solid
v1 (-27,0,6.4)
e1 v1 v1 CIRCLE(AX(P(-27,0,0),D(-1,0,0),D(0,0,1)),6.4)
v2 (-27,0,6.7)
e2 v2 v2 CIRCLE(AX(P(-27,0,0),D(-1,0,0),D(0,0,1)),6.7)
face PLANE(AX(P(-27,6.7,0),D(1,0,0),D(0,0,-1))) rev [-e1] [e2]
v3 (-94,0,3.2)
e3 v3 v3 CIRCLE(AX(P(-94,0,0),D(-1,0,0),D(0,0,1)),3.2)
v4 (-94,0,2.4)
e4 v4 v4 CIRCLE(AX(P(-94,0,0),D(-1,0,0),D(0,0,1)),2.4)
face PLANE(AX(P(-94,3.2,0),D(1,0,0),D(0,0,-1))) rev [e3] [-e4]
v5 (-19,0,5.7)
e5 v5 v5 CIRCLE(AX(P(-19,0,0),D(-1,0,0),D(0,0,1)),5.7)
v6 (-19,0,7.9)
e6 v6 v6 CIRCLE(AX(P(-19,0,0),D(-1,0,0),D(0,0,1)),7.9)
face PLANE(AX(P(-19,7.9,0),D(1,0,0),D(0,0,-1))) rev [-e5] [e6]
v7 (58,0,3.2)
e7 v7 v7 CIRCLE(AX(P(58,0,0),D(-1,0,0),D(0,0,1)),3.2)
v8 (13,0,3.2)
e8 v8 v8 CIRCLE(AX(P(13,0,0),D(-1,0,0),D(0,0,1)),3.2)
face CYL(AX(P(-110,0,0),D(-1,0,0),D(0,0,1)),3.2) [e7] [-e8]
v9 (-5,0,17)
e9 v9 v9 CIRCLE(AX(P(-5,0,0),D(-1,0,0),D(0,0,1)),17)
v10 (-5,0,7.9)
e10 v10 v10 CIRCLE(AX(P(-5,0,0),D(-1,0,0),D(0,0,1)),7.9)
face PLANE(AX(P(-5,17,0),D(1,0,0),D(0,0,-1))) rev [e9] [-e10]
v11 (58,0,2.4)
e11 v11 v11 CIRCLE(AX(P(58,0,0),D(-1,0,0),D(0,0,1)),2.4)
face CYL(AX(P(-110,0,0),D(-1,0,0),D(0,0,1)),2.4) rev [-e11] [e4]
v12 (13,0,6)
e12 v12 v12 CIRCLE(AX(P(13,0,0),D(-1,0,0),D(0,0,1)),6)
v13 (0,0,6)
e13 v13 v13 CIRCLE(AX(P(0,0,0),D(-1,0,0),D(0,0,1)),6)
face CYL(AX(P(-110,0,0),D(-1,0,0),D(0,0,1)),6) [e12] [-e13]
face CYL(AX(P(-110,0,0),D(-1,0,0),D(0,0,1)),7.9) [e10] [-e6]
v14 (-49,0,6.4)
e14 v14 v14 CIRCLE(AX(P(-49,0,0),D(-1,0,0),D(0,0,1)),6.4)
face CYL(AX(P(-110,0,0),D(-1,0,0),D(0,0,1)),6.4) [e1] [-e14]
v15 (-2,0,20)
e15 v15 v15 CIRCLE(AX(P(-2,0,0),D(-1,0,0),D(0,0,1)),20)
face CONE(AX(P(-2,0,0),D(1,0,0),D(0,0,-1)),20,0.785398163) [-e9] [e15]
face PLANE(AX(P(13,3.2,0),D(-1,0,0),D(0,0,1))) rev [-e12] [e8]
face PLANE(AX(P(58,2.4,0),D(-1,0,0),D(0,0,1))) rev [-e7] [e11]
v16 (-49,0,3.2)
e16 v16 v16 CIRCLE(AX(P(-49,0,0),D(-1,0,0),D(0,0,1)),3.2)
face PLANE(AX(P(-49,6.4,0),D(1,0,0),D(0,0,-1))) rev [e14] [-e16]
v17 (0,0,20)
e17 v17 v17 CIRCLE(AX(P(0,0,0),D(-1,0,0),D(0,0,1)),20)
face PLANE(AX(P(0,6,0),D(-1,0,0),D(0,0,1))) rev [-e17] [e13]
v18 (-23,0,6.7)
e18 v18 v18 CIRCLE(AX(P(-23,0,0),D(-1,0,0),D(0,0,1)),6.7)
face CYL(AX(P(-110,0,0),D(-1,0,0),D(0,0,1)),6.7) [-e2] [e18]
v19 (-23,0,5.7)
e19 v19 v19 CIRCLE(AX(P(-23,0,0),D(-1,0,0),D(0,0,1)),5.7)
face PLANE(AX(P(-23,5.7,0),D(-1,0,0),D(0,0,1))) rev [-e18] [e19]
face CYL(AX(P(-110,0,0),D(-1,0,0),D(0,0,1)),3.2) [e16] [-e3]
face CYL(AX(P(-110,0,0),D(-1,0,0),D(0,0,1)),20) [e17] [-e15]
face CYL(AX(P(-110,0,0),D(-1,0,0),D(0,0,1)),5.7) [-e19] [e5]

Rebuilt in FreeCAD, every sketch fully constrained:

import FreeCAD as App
import Part
import Sketcher

V = App.Vector
Q = App.Units.Quantity


def add_polygon(sketch, points):
    """Adds a closed chain of lines whose ends are joined by coincident constraints."""
    first, n = sketch.GeometryCount, len(points)
    for a, b in zip(points, points[1:] + points[:1]):
        sketch.addGeometry(Part.LineSegment(App.Vector(*a, 0), App.Vector(*b, 0)), False)
    for i in range(n):
        sketch.addConstraint(Sketcher.Constraint("Coincident", first + i, 2, first + (i + 1) % n, 1))

doc = App.newDocument("Part")
body = doc.addObject("PartDesign::Body", "Body")

# Sketch on XY plane
sketch1 = body.newObject("Sketcher::SketchObject", "Sketch")
sketch1.AttachmentSupport = (doc.getObject("XY_Plane"), [""])
sketch1.MapMode = "FlatFace"
add_polygon(sketch1, [(-94, 2.4), (58, 2.4), (58, 3.2), (13, 3.2), (13, 6), (0, 6), (0, 20), (-2, 20), (-5, 17), (-5, 7.9), (-19, 7.9), (-19, 5.7), (-23, 5.7), (-23, 6.7), (-27, 6.7), (-27, 6.4), (-49, 6.4), (-49, 3.2), (-94, 3.2)])  # lines 0-18
sketch1.addConstraint([
    Sketcher.Constraint("Horizontal", 0),
    Sketcher.Constraint("Vertical", 1),
    Sketcher.Constraint("Horizontal", 2),
    Sketcher.Constraint("Vertical", 3),
    Sketcher.Constraint("Horizontal", 4),
    Sketcher.Constraint("Vertical", 5),
    Sketcher.Constraint("Horizontal", 6),
    Sketcher.Constraint("Vertical", 8),
    Sketcher.Constraint("Horizontal", 9),
    Sketcher.Constraint("Vertical", 10),
    Sketcher.Constraint("Horizontal", 11),
    Sketcher.Constraint("Vertical", 12),
    Sketcher.Constraint("Horizontal", 13),
    Sketcher.Constraint("Vertical", 14),
    Sketcher.Constraint("Horizontal", 15),
    Sketcher.Constraint("Vertical", 16),
    Sketcher.Constraint("Horizontal", 17),
    Sketcher.Constraint("Vertical", 18),
    Sketcher.Constraint("PointOnObject", 4, 2, -2),
    Sketcher.Constraint("Horizontal", 2, 2, 16, 2),
    Sketcher.Constraint("Equal", 11, 13),
    Sketcher.Constraint("Equal", 2, 17),
    Sketcher.Constraint("Equal", 9, 5),
    Sketcher.Constraint("DistanceX", 0, 1, 0, 2, Q("152 mm")),
    Sketcher.Constraint("DistanceX", 2, 2, 2, 1, Q("45 mm")),
    Sketcher.Constraint("DistanceX", 4, 2, 4, 1, Q("13 mm")),
    Sketcher.Constraint("DistanceX", 6, 2, 6, 1, Q("2 mm")),
    Sketcher.Constraint("DistanceX", 9, 2, 9, 1, Q("14 mm")),
    Sketcher.Constraint("DistanceX", 11, 2, 11, 1, Q("4 mm")),
    Sketcher.Constraint("DistanceX", 15, 2, 15, 1, Q("22 mm")),
    Sketcher.Constraint("DistanceY", 12, 1, 12, 2, Q("1 mm")),
    Sketcher.Constraint("Angle", 7, Q("-135 deg")),
    Sketcher.Constraint("DistanceY", 1, 1, 1, 2, Q("0.8 mm")),
    Sketcher.Constraint("DistanceY", 3, 1, 3, 2, Q("2.8 mm")),
    Sketcher.Constraint("DistanceY", 8, 2, 8, 1, Q("9.1 mm")),
    Sketcher.Constraint("DistanceY", 10, 2, 10, 1, Q("2.2 mm")),
    Sketcher.Constraint("DistanceY", 14, 2, 14, 1, Q("0.3 mm")),
    Sketcher.Constraint("DistanceY", -1, 1, 3, 2, Q("6 mm")),
])
revolution = body.newObject("PartDesign::Revolution", "Revolution")
revolution.Profile = sketch1
revolution.ReferenceAxis = (sketch1, ["H_Axis"])
revolution.Angle = 360

doc.recompute()
